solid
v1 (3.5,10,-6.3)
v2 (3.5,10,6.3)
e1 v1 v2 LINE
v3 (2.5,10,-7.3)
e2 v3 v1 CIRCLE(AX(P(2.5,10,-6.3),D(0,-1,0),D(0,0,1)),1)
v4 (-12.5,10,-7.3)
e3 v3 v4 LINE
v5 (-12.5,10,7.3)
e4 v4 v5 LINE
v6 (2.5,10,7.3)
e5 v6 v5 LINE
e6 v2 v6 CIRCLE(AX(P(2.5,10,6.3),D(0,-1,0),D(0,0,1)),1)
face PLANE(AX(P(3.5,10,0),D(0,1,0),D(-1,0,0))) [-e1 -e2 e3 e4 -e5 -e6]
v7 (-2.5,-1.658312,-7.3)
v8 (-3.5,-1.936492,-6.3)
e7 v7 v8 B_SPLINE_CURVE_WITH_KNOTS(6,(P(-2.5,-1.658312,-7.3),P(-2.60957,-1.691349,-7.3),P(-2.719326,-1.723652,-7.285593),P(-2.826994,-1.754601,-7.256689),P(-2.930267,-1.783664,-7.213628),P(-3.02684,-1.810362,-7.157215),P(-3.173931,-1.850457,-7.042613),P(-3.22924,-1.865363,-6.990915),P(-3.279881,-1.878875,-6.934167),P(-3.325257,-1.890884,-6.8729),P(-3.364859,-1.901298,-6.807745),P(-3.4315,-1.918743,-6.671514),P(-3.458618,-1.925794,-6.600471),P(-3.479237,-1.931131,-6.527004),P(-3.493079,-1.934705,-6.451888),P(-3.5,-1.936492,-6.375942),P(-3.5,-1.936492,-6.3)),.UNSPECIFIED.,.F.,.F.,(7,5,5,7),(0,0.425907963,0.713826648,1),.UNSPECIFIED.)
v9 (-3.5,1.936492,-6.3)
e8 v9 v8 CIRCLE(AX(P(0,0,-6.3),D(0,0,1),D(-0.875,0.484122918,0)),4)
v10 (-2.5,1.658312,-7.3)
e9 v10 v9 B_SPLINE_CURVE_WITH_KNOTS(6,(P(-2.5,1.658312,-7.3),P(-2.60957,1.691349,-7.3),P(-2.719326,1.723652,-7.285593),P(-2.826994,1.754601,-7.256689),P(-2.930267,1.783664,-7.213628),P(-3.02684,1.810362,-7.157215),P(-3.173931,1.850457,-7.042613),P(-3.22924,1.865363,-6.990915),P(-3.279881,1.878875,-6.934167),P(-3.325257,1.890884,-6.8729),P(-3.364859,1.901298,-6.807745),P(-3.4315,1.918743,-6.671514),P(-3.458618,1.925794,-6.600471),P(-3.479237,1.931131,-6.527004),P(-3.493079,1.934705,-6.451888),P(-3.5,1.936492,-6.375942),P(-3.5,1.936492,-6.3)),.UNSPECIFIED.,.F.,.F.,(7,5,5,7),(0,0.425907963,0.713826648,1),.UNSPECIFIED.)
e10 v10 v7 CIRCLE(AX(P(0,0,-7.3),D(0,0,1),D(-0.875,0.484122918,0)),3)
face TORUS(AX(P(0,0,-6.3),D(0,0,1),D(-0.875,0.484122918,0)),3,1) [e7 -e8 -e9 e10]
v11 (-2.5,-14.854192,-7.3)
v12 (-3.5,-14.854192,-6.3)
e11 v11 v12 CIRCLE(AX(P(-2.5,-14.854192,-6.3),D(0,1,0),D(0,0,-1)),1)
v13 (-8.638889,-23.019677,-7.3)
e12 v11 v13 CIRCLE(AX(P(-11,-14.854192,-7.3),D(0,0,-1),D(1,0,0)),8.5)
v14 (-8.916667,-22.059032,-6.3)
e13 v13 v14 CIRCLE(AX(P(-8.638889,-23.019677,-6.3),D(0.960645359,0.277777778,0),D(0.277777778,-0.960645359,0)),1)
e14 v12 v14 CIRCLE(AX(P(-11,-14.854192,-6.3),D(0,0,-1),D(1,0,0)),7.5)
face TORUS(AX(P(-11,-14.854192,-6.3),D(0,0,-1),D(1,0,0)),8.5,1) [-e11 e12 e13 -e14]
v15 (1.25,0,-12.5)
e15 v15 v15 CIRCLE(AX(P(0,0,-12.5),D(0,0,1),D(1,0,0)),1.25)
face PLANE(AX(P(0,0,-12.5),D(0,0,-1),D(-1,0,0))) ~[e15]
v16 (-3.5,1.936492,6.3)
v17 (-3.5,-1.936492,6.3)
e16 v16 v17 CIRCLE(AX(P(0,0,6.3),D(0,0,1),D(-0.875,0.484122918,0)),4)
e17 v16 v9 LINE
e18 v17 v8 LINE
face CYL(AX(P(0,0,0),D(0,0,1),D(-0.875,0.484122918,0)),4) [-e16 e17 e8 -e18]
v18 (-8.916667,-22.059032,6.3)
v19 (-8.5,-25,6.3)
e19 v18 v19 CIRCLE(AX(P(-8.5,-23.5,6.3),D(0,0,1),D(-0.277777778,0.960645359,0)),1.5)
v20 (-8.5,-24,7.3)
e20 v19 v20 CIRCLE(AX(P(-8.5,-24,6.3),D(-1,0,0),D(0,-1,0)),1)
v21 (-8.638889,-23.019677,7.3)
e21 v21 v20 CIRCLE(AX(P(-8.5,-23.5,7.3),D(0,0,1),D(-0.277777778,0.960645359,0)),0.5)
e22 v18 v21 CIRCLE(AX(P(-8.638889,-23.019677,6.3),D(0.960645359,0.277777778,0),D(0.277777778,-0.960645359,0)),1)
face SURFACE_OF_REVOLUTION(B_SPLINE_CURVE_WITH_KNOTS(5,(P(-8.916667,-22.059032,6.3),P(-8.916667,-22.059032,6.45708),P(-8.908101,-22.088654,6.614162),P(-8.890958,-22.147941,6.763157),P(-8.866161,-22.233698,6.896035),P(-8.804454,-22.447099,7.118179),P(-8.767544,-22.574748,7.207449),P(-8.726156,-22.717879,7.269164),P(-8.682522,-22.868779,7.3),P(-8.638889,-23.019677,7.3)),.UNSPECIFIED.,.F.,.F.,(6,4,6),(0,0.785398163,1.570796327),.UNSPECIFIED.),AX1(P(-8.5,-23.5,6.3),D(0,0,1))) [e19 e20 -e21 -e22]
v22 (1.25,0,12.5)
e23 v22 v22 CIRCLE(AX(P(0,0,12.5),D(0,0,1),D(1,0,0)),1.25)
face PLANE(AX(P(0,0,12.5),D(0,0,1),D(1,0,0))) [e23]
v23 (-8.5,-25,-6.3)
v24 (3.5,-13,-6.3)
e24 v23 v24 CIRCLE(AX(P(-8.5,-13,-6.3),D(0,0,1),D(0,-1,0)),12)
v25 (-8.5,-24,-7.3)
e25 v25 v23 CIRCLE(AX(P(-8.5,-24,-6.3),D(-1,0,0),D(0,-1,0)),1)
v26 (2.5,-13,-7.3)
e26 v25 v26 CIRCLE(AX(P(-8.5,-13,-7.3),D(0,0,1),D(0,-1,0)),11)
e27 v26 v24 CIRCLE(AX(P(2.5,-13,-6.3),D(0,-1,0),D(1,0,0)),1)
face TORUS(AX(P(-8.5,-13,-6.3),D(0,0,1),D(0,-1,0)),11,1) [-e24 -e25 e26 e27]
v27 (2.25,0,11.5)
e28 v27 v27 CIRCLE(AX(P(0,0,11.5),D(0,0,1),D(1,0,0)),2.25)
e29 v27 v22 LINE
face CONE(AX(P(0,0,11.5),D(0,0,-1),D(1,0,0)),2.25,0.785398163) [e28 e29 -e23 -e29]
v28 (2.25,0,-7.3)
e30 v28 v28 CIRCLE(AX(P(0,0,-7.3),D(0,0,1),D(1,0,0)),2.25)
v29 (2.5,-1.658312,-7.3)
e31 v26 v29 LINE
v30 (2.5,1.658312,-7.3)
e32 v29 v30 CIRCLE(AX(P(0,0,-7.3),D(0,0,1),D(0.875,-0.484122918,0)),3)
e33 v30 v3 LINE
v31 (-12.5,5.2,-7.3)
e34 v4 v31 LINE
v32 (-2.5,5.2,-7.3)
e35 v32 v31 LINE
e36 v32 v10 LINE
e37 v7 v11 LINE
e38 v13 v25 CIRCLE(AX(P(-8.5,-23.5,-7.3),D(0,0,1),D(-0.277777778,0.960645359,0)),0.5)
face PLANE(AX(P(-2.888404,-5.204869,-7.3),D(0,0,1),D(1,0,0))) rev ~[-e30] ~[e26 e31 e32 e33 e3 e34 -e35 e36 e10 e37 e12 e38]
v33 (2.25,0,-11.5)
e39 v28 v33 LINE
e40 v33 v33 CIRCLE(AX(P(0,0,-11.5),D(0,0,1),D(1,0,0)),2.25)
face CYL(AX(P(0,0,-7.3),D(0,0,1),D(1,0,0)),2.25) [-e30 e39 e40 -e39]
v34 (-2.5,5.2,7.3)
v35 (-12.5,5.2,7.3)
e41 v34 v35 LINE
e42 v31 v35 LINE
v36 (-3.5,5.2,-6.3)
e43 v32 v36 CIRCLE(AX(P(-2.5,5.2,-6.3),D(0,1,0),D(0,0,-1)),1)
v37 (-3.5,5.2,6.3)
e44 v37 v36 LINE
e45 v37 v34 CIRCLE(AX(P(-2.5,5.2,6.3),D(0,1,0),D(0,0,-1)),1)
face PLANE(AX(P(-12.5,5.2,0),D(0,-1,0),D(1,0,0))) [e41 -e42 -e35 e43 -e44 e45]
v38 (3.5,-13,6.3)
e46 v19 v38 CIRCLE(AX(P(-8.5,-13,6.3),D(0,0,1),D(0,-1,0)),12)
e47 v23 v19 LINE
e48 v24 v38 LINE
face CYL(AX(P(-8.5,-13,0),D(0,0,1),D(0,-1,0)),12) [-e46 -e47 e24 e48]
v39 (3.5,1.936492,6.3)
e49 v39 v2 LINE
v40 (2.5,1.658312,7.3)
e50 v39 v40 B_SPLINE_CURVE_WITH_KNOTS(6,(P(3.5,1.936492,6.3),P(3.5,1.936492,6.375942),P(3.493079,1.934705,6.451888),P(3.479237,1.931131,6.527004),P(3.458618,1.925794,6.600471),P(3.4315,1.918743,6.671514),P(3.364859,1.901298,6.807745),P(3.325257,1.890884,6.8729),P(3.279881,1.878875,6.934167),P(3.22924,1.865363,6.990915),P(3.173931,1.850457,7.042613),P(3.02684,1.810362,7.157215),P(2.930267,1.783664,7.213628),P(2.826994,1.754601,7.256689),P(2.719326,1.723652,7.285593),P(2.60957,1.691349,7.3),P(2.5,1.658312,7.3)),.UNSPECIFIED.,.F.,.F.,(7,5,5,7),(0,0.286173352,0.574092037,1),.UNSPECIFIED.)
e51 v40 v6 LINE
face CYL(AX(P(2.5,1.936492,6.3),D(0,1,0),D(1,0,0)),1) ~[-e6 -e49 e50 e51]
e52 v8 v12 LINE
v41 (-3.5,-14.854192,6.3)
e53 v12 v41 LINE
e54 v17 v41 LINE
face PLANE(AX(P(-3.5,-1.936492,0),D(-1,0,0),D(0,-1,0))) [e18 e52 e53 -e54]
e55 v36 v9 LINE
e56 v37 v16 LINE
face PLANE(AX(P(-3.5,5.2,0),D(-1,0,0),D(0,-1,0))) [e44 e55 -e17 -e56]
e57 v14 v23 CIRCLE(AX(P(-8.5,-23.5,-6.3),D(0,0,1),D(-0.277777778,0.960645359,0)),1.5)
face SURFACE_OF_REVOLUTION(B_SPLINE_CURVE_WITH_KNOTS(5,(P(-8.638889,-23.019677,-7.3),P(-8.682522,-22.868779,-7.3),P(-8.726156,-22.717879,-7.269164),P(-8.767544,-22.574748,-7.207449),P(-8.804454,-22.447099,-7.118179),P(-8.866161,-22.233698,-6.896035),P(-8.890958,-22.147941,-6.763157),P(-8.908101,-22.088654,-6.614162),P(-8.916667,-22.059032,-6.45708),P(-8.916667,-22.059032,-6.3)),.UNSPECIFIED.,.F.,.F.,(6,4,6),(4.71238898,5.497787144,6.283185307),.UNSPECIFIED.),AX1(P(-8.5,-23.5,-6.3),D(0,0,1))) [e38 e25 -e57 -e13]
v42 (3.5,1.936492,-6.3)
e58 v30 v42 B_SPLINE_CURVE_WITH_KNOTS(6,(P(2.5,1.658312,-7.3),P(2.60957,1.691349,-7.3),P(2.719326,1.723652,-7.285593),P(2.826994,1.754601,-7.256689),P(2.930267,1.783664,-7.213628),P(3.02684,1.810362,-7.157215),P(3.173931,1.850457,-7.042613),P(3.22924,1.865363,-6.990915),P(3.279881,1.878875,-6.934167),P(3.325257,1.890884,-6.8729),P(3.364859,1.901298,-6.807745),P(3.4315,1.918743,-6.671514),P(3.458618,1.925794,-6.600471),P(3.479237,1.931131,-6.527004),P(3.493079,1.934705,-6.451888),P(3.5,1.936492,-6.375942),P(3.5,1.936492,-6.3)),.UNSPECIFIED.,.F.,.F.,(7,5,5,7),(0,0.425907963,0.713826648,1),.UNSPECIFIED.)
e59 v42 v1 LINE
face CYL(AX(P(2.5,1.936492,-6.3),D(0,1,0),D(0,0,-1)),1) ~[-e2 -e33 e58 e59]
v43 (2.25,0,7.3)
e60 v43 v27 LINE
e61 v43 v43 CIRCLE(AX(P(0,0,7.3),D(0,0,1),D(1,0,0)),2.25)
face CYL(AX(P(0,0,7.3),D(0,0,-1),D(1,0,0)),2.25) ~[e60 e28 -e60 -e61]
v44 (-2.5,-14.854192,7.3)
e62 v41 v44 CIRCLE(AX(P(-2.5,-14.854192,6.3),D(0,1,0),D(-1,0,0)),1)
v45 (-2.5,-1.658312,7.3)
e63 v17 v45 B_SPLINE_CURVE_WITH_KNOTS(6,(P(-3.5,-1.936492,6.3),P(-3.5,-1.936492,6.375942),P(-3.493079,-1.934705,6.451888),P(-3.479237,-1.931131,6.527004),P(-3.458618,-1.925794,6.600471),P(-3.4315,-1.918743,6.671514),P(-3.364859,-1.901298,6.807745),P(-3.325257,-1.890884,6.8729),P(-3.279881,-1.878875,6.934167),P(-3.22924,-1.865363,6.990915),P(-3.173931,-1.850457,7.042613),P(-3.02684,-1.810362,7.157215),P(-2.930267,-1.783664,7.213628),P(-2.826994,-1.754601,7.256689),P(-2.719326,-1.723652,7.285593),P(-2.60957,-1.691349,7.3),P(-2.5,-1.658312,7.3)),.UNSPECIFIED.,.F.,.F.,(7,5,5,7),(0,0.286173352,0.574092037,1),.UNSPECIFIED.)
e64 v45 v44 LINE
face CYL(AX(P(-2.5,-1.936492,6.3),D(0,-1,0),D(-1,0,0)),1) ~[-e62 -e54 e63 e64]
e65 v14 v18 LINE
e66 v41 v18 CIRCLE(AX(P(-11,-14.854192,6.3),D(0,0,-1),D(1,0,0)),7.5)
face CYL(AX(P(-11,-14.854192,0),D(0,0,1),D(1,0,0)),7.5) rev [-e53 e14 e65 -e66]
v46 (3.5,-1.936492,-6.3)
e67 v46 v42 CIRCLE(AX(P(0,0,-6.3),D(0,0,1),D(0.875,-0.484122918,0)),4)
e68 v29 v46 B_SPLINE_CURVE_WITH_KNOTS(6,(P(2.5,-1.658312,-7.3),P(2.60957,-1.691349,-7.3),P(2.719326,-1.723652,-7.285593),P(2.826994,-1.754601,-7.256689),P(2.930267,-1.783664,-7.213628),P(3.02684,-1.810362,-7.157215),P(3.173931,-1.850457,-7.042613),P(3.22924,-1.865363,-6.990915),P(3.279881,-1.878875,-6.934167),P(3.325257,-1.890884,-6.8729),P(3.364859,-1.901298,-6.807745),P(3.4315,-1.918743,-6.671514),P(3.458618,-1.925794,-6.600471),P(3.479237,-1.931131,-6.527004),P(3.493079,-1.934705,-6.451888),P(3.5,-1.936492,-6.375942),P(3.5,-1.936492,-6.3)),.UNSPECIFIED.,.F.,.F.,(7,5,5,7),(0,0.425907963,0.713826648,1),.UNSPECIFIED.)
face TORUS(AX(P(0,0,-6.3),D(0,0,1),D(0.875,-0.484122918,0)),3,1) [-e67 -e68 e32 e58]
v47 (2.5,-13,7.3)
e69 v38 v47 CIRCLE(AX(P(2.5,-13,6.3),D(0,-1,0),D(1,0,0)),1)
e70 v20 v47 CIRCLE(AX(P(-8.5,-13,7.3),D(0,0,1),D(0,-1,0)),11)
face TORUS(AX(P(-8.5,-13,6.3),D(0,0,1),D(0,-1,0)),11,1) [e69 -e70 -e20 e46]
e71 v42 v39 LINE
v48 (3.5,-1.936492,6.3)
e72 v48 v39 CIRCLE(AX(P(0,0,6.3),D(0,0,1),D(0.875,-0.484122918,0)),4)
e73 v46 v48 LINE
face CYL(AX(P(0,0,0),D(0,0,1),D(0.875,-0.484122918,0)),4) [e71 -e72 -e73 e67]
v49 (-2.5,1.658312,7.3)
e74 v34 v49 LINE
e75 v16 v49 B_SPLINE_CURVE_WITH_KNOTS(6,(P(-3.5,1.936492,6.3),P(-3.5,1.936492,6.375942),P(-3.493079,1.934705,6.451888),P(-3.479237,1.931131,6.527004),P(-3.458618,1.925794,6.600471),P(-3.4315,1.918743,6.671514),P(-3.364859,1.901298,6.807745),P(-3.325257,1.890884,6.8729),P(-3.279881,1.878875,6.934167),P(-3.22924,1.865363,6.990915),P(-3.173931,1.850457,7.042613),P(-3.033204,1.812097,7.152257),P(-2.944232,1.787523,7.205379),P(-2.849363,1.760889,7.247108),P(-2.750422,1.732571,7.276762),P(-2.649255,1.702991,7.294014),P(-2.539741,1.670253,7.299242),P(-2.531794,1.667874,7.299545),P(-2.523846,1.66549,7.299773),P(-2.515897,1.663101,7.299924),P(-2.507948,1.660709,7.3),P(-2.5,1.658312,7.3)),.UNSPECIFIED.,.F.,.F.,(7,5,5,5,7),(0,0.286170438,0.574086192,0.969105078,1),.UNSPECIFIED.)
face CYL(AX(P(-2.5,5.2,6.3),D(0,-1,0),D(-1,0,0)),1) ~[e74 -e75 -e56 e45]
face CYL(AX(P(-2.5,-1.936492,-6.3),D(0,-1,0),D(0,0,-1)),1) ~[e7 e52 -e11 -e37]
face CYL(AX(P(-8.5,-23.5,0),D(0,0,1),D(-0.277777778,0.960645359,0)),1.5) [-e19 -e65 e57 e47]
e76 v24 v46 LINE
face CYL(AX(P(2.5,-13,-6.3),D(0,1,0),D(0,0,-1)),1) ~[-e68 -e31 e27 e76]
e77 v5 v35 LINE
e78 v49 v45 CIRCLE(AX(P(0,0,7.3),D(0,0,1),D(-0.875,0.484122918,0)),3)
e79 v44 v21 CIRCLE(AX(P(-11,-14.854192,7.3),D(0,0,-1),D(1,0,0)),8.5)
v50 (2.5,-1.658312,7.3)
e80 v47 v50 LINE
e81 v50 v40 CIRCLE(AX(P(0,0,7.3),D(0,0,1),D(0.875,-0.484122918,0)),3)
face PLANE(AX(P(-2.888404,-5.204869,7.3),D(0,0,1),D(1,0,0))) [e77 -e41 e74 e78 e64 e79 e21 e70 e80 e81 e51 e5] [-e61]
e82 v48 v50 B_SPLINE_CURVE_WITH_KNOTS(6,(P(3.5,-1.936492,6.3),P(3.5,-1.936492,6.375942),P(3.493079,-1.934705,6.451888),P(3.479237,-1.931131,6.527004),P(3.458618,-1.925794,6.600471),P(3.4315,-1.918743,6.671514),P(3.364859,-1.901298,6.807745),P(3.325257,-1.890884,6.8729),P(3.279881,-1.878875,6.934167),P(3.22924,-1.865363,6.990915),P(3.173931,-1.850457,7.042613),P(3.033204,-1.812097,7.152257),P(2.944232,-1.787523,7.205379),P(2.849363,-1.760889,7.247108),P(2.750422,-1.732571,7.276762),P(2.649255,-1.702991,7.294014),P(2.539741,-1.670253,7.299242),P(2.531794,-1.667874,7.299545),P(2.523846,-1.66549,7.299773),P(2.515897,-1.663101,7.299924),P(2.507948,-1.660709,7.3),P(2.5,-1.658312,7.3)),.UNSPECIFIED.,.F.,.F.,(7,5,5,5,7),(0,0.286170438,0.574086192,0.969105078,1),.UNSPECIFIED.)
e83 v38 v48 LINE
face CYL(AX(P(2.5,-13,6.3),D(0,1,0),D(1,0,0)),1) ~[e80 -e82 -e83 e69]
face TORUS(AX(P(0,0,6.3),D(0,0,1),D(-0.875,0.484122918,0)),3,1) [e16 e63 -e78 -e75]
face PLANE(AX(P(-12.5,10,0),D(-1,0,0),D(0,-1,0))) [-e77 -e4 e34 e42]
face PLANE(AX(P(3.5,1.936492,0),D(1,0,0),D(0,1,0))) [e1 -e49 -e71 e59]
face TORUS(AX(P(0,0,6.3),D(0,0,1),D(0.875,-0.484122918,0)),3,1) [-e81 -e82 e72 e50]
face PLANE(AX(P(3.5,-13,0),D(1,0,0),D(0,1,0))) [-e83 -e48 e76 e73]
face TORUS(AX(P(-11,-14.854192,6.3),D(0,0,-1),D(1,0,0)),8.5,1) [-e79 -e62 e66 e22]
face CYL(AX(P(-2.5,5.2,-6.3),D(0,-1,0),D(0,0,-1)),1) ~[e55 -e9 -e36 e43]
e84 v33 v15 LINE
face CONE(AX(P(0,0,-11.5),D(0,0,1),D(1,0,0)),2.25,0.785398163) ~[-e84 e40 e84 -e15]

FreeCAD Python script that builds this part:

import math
import FreeCAD as App
import Part
import Sketcher
from FreeCAD import Vector
Q = App.Units.Quantity


def edges_at(feature, points):
    """Names of the edges that pass closest to the given points."""
    edges = feature.Shape.Edges
    near = lambda p: min(range(len(edges)), key=lambda i: edges[i].distToShape(Part.Vertex(*p))[0])
    return sorted({f"Edge{near(p) + 1}" for p in points})

doc = App.newDocument("Part")
body = doc.addObject("PartDesign::Body", "Body")

# Sketch on XY plane
sketch1 = doc.addObject("Sketcher::SketchObject", "Sketch")
body.addObject(sketch1)
sketch1.AttachmentSupport = (doc.XY_Plane, [""])
sketch1.MapMode = "FlatFace"
sketch1.addGeometry(Part.LineSegment(Vector(-3.5, -1.936492, 0), Vector(-3.5, -14.854192, 0)), False)
sketch1.addGeometry(Part.ArcOfCircle(Part.Circle(Vector(-11, -14.854192, 0), Vector(0, 0, 1), 7.5), math.radians(-73.87238), math.radians(0)), False)
sketch1.addGeometry(Part.ArcOfCircle(Part.Circle(Vector(-8.5, -23.5, 0), Vector(0, 0, 1), 1.5), math.radians(106.12762), math.radians(270)), False)
sketch1.addGeometry(Part.ArcOfCircle(Part.Circle(Vector(-8.5, -13, 0), Vector(0, 0, 1), 12), math.radians(-90), math.radians(0)), False)
sketch1.addGeometry(Part.LineSegment(Vector(3.5, -13, 0), Vector(3.5, -1.936492, 0)), False)
sketch1.addGeometry(Part.ArcOfCircle(Part.Circle(Vector(0, 0, 0), Vector(0, 0, 1), 4), math.radians(-28.955024), math.radians(28.955024)), False)
sketch1.addGeometry(Part.LineSegment(Vector(3.5, 1.936492, 0), Vector(3.5, 10, 0)), False)
sketch1.addGeometry(Part.LineSegment(Vector(3.5, 10, 0), Vector(-12.5, 10, 0)), False)
sketch1.addGeometry(Part.LineSegment(Vector(-12.5, 10, 0), Vector(-12.5, 5.2, 0)), False)
sketch1.addGeometry(Part.LineSegment(Vector(-12.5, 5.2, 0), Vector(-3.5, 5.2, 0)), False)
sketch1.addGeometry(Part.LineSegment(Vector(-3.5, 5.2, 0), Vector(-3.5, 1.936492, 0)), False)
sketch1.addGeometry(Part.ArcOfCircle(Part.Circle(Vector(0, 0, 0), Vector(0, 0, 1), 4), math.radians(151.044976), math.radians(208.955024)), False)
sketch1.addConstraint(Sketcher.Constraint("Tangent", 0, 2, 1, 2))
sketch1.addConstraint(Sketcher.Constraint("Tangent", 1, 1, 2, 1))
sketch1.addConstraint(Sketcher.Constraint("Tangent", 2, 2, 3, 1))
sketch1.addConstraint(Sketcher.Constraint("Tangent", 3, 2, 4, 1))
sketch1.addConstraint(Sketcher.Constraint("Coincident", 4, 2, 5, 1))
sketch1.addConstraint(Sketcher.Constraint("Coincident", 5, 2, 6, 1))
sketch1.addConstraint(Sketcher.Constraint("Coincident", 6, 2, 7, 1))
sketch1.addConstraint(Sketcher.Constraint("Coincident", 7, 2, 8, 1))
sketch1.addConstraint(Sketcher.Constraint("Coincident", 8, 2, 9, 1))
sketch1.addConstraint(Sketcher.Constraint("Coincident", 9, 2, 10, 1))
sketch1.addConstraint(Sketcher.Constraint("Coincident", 10, 2, 11, 1))
sketch1.addConstraint(Sketcher.Constraint("Coincident", 11, 2, 0, 1))
sketch1.addConstraint(Sketcher.Constraint("Vertical", 0))
sketch1.addConstraint(Sketcher.Constraint("Vertical", 4))
sketch1.addConstraint(Sketcher.Constraint("Vertical", 6))
sketch1.addConstraint(Sketcher.Constraint("Horizontal", 7))
sketch1.addConstraint(Sketcher.Constraint("Vertical", 8))
sketch1.addConstraint(Sketcher.Constraint("Horizontal", 9))
sketch1.addConstraint(Sketcher.Constraint("Vertical", 10))
sketch1.addConstraint(Sketcher.Constraint("Coincident", 5, 3, -1, 1))
sketch1.addConstraint(Sketcher.Constraint("Coincident", 11, 3, -1, 1))
sketch1.addConstraint(Sketcher.Constraint("Equal", 5, 11))
sketch1.addConstraint(Sketcher.Constraint("Horizontal", 5, 2, 10, 2))
sketch1.addConstraint(Sketcher.Constraint("Horizontal", 4, 2, 11, 2))
sketch1.addConstraint(Sketcher.Constraint("Vertical", 2, 3, 3, 3))
sketch1.addConstraint(Sketcher.Constraint("Vertical", 4, 2, 5, 2))
sketch1.addConstraint(Sketcher.Constraint("Radius", 3, Q("12 mm")))
sketch1.addConstraint(Sketcher.Constraint("Radius", 5, Q("4 mm")))
sketch1.addConstraint(Sketcher.Constraint("Radius", 1, Q("7.5 mm")))
sketch1.addConstraint(Sketcher.Constraint("Radius", 2, Q("1.5 mm")))
sketch1.addConstraint(Sketcher.Constraint("DistanceX", 7, 2, 7, 1, Q("16 mm")))
sketch1.addConstraint(Sketcher.Constraint("DistanceX", 9, 1, 9, 2, Q("9 mm")))
sketch1.addConstraint(Sketcher.Constraint("DistanceY", 8, 2, 8, 1, Q("4.8 mm")))
sketch1.addConstraint(Sketcher.Constraint("DistanceY", 3, 3, -1, 1, Q("13 mm")))
sketch1.addConstraint(Sketcher.Constraint("DistanceY", -1, 1, 6, 2, Q("10 mm")))
pad1 = doc.addObject("PartDesign::Pad", "Pad")
body.addObject(pad1)
pad1.Profile = sketch1
pad1.Length = 14.6
pad1.Midplane = True

# Sketch on XY plane
sketch2 = doc.addObject("Sketcher::SketchObject", "Sketch001")
body.addObject(sketch2)
sketch2.AttachmentSupport = (doc.XY_Plane, [""])
sketch2.MapMode = "FlatFace"
sketch2.AttachmentOffset = App.Placement(Vector(0, 0, 7.3), App.Rotation())
sketch2.addGeometry(Part.Circle(Vector(0, 0, 0), Vector(0, 0, 1), 2.25), False)
sketch2.addConstraint(Sketcher.Constraint("Coincident", 0, 3, -1, 1))
sketch2.addConstraint(Sketcher.Constraint("Diameter", 0, Q("4.5 mm")))
pad2 = doc.addObject("PartDesign::Pad", "Pad001")
body.addObject(pad2)
pad2.Profile = sketch2
pad2.Length = 5.2
doc.recompute()

chamfer = doc.addObject("PartDesign::Chamfer", "Chamfer")
body.addObject(chamfer)
chamfer.Base = (pad2, edges_at(pad2, [(-2.25, 0, 12.5)]))
chamfer.Size = 1
doc.recompute()

mirrored = doc.addObject("PartDesign::Mirrored", "Mirrored")
body.addObject(mirrored)
mirrored.Originals = [pad2]
mirrored.MirrorPlane = (doc.XY_Plane, [""])
body.Tip = mirrored
doc.recompute()

chamfer2 = doc.addObject("PartDesign::Chamfer", "Chamfer001")
body.addObject(chamfer2)
chamfer2.Base = (mirrored, edges_at(mirrored, [(-2.25, 0, -12.5)]))
chamfer2.Size = 1
doc.recompute()

fillet = doc.addObject("PartDesign::Fillet", "Fillet")
body.addObject(fillet)
fillet.Base = (chamfer2, edges_at(chamfer2, [
    (3.5, -7.468, 7.3),
    (-5.005, -19.361, -7.3),
    (-3.5, -8.395, -7.3),
    (-4, 0, -7.3),
    (-3.5, 3.568, -7.3),
    (3.5, 5.968, -7.3),
    (4, 0, -7.3),
    (4, 0, 7.3),
    (3.5, -7.468, -7.3),
    (-0.015, -21.485, -7.3),
    (-9.985, -23.71, -7.3),
    (3.5, 5.968, 7.3),
    (-3.5, 3.568, 7.3),
    (-4, 0, 7.3),
    (-3.5, -8.395, 7.3),
    (-9.985, -23.71, 7.3),
    (-5.005, -19.361, 7.3),
    (-0.015, -21.485, 7.3),
]))
fillet.Radius = 1

doc.recompute()
